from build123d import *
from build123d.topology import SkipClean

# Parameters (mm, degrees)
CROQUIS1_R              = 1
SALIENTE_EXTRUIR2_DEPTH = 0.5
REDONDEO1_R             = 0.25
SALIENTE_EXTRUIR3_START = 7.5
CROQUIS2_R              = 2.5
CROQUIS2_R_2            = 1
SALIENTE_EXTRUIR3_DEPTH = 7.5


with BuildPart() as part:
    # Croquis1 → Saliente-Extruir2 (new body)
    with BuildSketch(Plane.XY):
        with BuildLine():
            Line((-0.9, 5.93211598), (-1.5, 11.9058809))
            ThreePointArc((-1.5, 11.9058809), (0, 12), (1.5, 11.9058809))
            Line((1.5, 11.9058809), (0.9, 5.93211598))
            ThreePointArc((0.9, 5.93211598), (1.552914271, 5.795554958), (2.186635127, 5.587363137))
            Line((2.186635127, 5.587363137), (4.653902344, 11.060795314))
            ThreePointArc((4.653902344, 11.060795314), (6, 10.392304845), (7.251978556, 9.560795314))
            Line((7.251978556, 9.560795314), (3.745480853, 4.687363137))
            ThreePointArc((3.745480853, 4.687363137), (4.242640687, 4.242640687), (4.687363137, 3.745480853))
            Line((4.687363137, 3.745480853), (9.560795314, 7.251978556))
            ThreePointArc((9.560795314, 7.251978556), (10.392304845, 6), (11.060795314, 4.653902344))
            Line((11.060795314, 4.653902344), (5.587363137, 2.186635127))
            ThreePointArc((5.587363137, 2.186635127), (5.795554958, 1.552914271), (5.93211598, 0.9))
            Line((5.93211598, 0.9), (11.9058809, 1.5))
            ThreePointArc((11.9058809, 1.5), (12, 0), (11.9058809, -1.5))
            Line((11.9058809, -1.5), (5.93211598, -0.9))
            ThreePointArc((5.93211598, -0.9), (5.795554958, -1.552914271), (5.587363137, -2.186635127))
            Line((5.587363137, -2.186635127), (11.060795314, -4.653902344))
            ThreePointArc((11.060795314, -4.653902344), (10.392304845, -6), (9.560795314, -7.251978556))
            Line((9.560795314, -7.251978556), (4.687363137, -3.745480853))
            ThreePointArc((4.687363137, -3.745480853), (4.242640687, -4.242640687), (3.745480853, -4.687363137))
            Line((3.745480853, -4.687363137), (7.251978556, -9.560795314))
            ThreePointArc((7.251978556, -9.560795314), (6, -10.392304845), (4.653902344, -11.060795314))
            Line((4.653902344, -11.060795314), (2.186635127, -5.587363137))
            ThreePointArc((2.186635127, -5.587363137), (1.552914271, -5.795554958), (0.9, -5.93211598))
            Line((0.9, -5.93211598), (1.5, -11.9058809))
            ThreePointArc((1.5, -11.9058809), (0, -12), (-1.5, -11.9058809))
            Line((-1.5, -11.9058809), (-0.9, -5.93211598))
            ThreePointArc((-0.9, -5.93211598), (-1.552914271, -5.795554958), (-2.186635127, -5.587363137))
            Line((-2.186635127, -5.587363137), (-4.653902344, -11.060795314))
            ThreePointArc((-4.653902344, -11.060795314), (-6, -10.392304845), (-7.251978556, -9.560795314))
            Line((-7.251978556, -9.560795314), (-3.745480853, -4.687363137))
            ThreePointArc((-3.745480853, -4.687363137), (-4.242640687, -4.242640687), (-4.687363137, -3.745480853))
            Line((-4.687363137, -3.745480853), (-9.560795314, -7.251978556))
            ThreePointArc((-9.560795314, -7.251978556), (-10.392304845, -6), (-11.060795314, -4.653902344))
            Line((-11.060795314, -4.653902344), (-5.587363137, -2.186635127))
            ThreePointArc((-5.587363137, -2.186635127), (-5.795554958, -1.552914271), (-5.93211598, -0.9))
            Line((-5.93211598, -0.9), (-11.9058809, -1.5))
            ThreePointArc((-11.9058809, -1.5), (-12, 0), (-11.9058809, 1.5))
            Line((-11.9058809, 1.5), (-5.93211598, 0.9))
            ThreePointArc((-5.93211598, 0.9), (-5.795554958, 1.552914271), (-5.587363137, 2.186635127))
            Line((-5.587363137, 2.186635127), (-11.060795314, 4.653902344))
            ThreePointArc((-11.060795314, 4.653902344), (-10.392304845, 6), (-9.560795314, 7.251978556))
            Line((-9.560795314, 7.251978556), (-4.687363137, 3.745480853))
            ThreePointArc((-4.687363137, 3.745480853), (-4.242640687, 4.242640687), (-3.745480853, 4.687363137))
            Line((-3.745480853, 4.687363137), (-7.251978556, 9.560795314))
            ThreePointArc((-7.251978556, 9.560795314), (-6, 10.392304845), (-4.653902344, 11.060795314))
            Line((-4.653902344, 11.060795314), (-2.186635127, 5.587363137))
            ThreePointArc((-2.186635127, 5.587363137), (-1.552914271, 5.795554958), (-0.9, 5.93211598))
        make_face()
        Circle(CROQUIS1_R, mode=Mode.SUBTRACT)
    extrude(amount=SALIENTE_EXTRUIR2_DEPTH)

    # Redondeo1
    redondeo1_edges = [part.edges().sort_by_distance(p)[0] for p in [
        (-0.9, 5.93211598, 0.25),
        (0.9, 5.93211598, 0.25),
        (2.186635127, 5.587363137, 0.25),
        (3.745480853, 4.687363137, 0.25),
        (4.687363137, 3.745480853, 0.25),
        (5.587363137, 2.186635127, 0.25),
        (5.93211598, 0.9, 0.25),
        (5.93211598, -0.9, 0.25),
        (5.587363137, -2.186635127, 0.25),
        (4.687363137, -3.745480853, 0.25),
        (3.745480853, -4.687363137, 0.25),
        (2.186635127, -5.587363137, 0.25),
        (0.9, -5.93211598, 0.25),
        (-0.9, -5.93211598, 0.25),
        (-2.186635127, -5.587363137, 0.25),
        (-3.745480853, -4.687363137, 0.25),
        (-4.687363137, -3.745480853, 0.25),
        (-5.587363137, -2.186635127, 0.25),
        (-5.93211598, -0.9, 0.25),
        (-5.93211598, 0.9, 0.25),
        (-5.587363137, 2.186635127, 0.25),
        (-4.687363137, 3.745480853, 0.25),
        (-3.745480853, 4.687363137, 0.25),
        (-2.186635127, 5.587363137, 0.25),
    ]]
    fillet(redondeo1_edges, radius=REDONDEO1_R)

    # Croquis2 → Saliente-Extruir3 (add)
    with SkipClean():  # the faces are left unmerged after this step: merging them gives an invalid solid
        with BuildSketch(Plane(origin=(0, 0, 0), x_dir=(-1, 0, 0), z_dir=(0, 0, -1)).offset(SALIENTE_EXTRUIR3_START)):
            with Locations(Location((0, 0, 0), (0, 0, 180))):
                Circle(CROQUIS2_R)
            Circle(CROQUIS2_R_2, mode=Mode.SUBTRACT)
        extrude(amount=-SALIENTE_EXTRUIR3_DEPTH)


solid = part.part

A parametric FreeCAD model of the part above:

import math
import FreeCAD as App
import Part
import Sketcher

V = App.Vector
Q = App.Units.Quantity


def edges_at(feature, points):
    """Names of the edges that pass closest to the given points."""
    edges = feature.Shape.Edges
    near = lambda p: min(range(len(edges)), key=lambda i: edges[i].distToShape(Part.Vertex(*p))[0])
    return sorted({f"Edge{near(p) + 1}" for p in points})

doc = App.newDocument("Part")
body = doc.addObject("PartDesign::Body", "Body")

# Sketch on XY plane
sketch1 = doc.addObject("Sketcher::SketchObject", "Sketch")
body.addObject(sketch1)
sketch1.AttachmentSupport = (doc.XY_Plane, [""])
sketch1.MapMode = "FlatFace"
sketch1.addGeometry(Part.LineSegment(V(-1.5, 11.9, 0), V(-0.9, 5.9, 0)), False)
sketch1.addGeometry(Part.ArcOfCircle(Part.Circle(V(0, 0, 0), V(0, 0, 1), 6), math.radians(98.63), math.radians(111.37)), False)
sketch1.addGeometry(Part.LineSegment(V(-2.2, 5.6, 0), V(-4.7, 11.1, 0)), False)
sketch1.addGeometry(Part.ArcOfCircle(Part.Circle(V(0, 0, 0), V(0, 0, 1), 12), math.radians(112.82), math.radians(127.18)), False)
sketch1.addGeometry(Part.LineSegment(V(-7.3, 9.6, 0), V(-3.7, 4.7, 0)), False)
sketch1.addGeometry(Part.ArcOfCircle(Part.Circle(V(0, 0, 0), V(0, 0, 1), 6), math.radians(128.63), math.radians(141.37)), False)
sketch1.addGeometry(Part.LineSegment(V(-4.7, 3.7, 0), V(-9.6, 7.3, 0)), False)
sketch1.addGeometry(Part.ArcOfCircle(Part.Circle(V(0, 0, 0), V(0, 0, 1), 12), math.radians(142.82), math.radians(157.18)), False)
sketch1.addGeometry(Part.LineSegment(V(-11.1, 4.7, 0), V(-5.6, 2.2, 0)), False)
sketch1.addGeometry(Part.ArcOfCircle(Part.Circle(V(0, 0, 0), V(0, 0, 1), 6), math.radians(158.63), math.radians(171.37)), False)
sketch1.addGeometry(Part.LineSegment(V(-5.9, 0.9, 0), V(-11.9, 1.5, 0)), False)
sketch1.addGeometry(Part.ArcOfCircle(Part.Circle(V(0, 0, 0), V(0, 0, 1), 12), math.radians(172.82), math.radians(187.18)), False)
sketch1.addGeometry(Part.LineSegment(V(-11.9, -1.5, 0), V(-5.9, -0.9, 0)), False)
sketch1.addGeometry(Part.ArcOfCircle(Part.Circle(V(0, 0, 0), V(0, 0, 1), 6), math.radians(-171.37), math.radians(-158.63)), False)
sketch1.addGeometry(Part.LineSegment(V(-5.6, -2.2, 0), V(-11.1, -4.7, 0)), False)
sketch1.addGeometry(Part.ArcOfCircle(Part.Circle(V(0, 0, 0), V(0, 0, 1), 12), math.radians(-157.18), math.radians(-142.82)), False)
sketch1.addGeometry(Part.LineSegment(V(-9.6, -7.3, 0), V(-4.7, -3.7, 0)), False)
sketch1.addGeometry(Part.ArcOfCircle(Part.Circle(V(0, 0, 0), V(0, 0, 1), 6), math.radians(-141.37), math.radians(-128.63)), False)
sketch1.addGeometry(Part.LineSegment(V(-3.7, -4.7, 0), V(-7.3, -9.6, 0)), False)
sketch1.addGeometry(Part.ArcOfCircle(Part.Circle(V(0, 0, 0), V(0, 0, 1), 12), math.radians(-127.18), math.radians(-112.82)), False)
sketch1.addGeometry(Part.LineSegment(V(-4.7, -11.1, 0), V(-2.2, -5.6, 0)), False)
sketch1.addGeometry(Part.ArcOfCircle(Part.Circle(V(0, 0, 0), V(0, 0, 1), 6), math.radians(-111.37), math.radians(-98.63)), False)
sketch1.addGeometry(Part.LineSegment(V(-0.9, -5.9, 0), V(-1.5, -11.9, 0)), False)
sketch1.addGeometry(Part.ArcOfCircle(Part.Circle(V(0, 0, 0), V(0, 0, 1), 12), math.radians(-97.18), math.radians(-82.82)), False)
sketch1.addGeometry(Part.LineSegment(V(1.5, -11.9, 0), V(0.9, -5.9, 0)), False)
sketch1.addGeometry(Part.ArcOfCircle(Part.Circle(V(0, 0, 0), V(0, 0, 1), 6), math.radians(-81.37), math.radians(-68.63)), False)
sketch1.addGeometry(Part.LineSegment(V(2.2, -5.6, 0), V(4.7, -11.1, 0)), False)
sketch1.addGeometry(Part.ArcOfCircle(Part.Circle(V(0, 0, 0), V(0, 0, 1), 12), math.radians(-67.18), math.radians(-52.82)), False)
sketch1.addGeometry(Part.LineSegment(V(7.3, -9.6, 0), V(3.7, -4.7, 0)), False)
sketch1.addGeometry(Part.ArcOfCircle(Part.Circle(V(0, 0, 0), V(0, 0, 1), 6), math.radians(-51.37), math.radians(-38.63)), False)
sketch1.addGeometry(Part.LineSegment(V(4.7, -3.7, 0), V(9.6, -7.3, 0)), False)
sketch1.addGeometry(Part.ArcOfCircle(Part.Circle(V(0, 0, 0), V(0, 0, 1), 12), math.radians(-37.18), math.radians(-22.82)), False)
sketch1.addGeometry(Part.LineSegment(V(11.1, -4.7, 0), V(5.6, -2.2, 0)), False)
sketch1.addGeometry(Part.ArcOfCircle(Part.Circle(V(0, 0, 0), V(0, 0, 1), 6), math.radians(-21.37), math.radians(-8.63)), False)
sketch1.addGeometry(Part.LineSegment(V(5.9, -0.9, 0), V(11.9, -1.5, 0)), False)
sketch1.addGeometry(Part.ArcOfCircle(Part.Circle(V(0, 0, 0), V(0, 0, 1), 12), math.radians(-7.18), math.radians(7.18)), False)
sketch1.addGeometry(Part.LineSegment(V(11.9, 1.5, 0), V(5.9, 0.9, 0)), False)
sketch1.addGeometry(Part.ArcOfCircle(Part.Circle(V(0, 0, 0), V(0, 0, 1), 6), math.radians(8.63), math.radians(21.37)), False)
sketch1.addGeometry(Part.LineSegment(V(5.6, 2.2, 0), V(11.1, 4.7, 0)), False)
sketch1.addGeometry(Part.ArcOfCircle(Part.Circle(V(0, 0, 0), V(0, 0, 1), 12), math.radians(22.82), math.radians(37.18)), False)
sketch1.addGeometry(Part.LineSegment(V(9.6, 7.3, 0), V(4.7, 3.7, 0)), False)
sketch1.addGeometry(Part.ArcOfCircle(Part.Circle(V(0, 0, 0), V(0, 0, 1), 6), math.radians(38.63), math.radians(51.37)), False)
sketch1.addGeometry(Part.LineSegment(V(3.7, 4.7, 0), V(7.3, 9.6, 0)), False)
sketch1.addGeometry(Part.ArcOfCircle(Part.Circle(V(0, 0, 0), V(0, 0, 1), 12), math.radians(52.82), math.radians(67.18)), False)
sketch1.addGeometry(Part.LineSegment(V(4.7, 11.1, 0), V(2.2, 5.6, 0)), False)
sketch1.addGeometry(Part.ArcOfCircle(Part.Circle(V(0, 0, 0), V(0, 0, 1), 6), math.radians(68.63), math.radians(81.37)), False)
sketch1.addGeometry(Part.LineSegment(V(0.9, 5.9, 0), V(1.5, 11.9, 0)), False)
sketch1.addGeometry(Part.ArcOfCircle(Part.Circle(V(0, 0, 0), V(0, 0, 1), 12), math.radians(82.82), math.radians(97.18)), False)
sketch1.addGeometry(Part.Circle(V(0, 0, 0), V(0, 0, 1), 1), False)
sketch1.addConstraint(Sketcher.Constraint("Coincident", 0, 2, 1, 1))
sketch1.addConstraint(Sketcher.Constraint("Coincident", 1, 2, 2, 1))
sketch1.addConstraint(Sketcher.Constraint("Coincident", 2, 2, 3, 1))
sketch1.addConstraint(Sketcher.Constraint("Coincident", 3, 2, 4, 1))
sketch1.addConstraint(Sketcher.Constraint("Coincident", 4, 2, 5, 1))
sketch1.addConstraint(Sketcher.Constraint("Coincident", 5, 2, 6, 1))
sketch1.addConstraint(Sketcher.Constraint("Coincident", 6, 2, 7, 1))
sketch1.addConstraint(Sketcher.Constraint("Coincident", 7, 2, 8, 1))
sketch1.addConstraint(Sketcher.Constraint("Coincident", 8, 2, 9, 1))
sketch1.addConstraint(Sketcher.Constraint("Coincident", 9, 2, 10, 1))
sketch1.addConstraint(Sketcher.Constraint("Coincident", 10, 2, 11, 1))
sketch1.addConstraint(Sketcher.Constraint("Coincident", 11, 2, 12, 1))
sketch1.addConstraint(Sketcher.Constraint("Coincident", 12, 2, 13, 1))
sketch1.addConstraint(Sketcher.Constraint("Coincident", 13, 2, 14, 1))
sketch1.addConstraint(Sketcher.Constraint("Coincident", 14, 2, 15, 1))
sketch1.addConstraint(Sketcher.Constraint("Coincident", 15, 2, 16, 1))
sketch1.addConstraint(Sketcher.Constraint("Coincident", 16, 2, 17, 1))
sketch1.addConstraint(Sketcher.Constraint("Coincident", 17, 2, 18, 1))
sketch1.addConstraint(Sketcher.Constraint("Coincident", 18, 2, 19, 1))
sketch1.addConstraint(Sketcher.Constraint("Coincident", 19, 2, 20, 1))
sketch1.addConstraint(Sketcher.Constraint("Coincident", 20, 2, 21, 1))
sketch1.addConstraint(Sketcher.Constraint("Coincident", 21, 2, 22, 1))
sketch1.addConstraint(Sketcher.Constraint("Coincident", 22, 2, 23, 1))
sketch1.addConstraint(Sketcher.Constraint("Coincident", 23, 2, 24, 1))
sketch1.addConstraint(Sketcher.Constraint("Coincident", 24, 2, 25, 1))
sketch1.addConstraint(Sketcher.Constraint("Coincident", 25, 2, 26, 1))
sketch1.addConstraint(Sketcher.Constraint("Coincident", 26, 2, 27, 1))
sketch1.addConstraint(Sketcher.Constraint("Coincident", 27, 2, 28, 1))
sketch1.addConstraint(Sketcher.Constraint("Coincident", 28, 2, 29, 1))
sketch1.addConstraint(Sketcher.Constraint("Coincident", 29, 2, 30, 1))
sketch1.addConstraint(Sketcher.Constraint("Coincident", 30, 2, 31, 1))
sketch1.addConstraint(Sketcher.Constraint("Coincident", 31, 2, 32, 1))
sketch1.addConstraint(Sketcher.Constraint("Coincident", 32, 2, 33, 1))
sketch1.addConstraint(Sketcher.Constraint("Coincident", 33, 2, 34, 1))
sketch1.addConstraint(Sketcher.Constraint("Coincident", 34, 2, 35, 1))
sketch1.addConstraint(Sketcher.Constraint("Coincident", 35, 2, 36, 1))
sketch1.addConstraint(Sketcher.Constraint("Coincident", 36, 2, 37, 1))
sketch1.addConstraint(Sketcher.Constraint("Coincident", 37, 2, 38, 1))
sketch1.addConstraint(Sketcher.Constraint("Coincident", 38, 2, 39, 1))
sketch1.addConstraint(Sketcher.Constraint("Coincident", 39, 2, 40, 1))
sketch1.addConstraint(Sketcher.Constraint("Coincident", 40, 2, 41, 1))
sketch1.addConstraint(Sketcher.Constraint("Coincident", 41, 2, 42, 1))
sketch1.addConstraint(Sketcher.Constraint("Coincident", 42, 2, 43, 1))
sketch1.addConstraint(Sketcher.Constraint("Coincident", 43, 2, 44, 1))
sketch1.addConstraint(Sketcher.Constraint("Coincident", 44, 2, 45, 1))
sketch1.addConstraint(Sketcher.Constraint("Coincident", 45, 2, 46, 1))
sketch1.addConstraint(Sketcher.Constraint("Coincident", 46, 2, 47, 1))
sketch1.addConstraint(Sketcher.Constraint("Coincident", 47, 2, 0, 1))
sketch1.addConstraint(Sketcher.Constraint("Coincident", 1, 3, -1, 1))
sketch1.addConstraint(Sketcher.Constraint("Coincident", 3, 3, -1, 1))
sketch1.addConstraint(Sketcher.Constraint("Coincident", 5, 3, -1, 1))
sketch1.addConstraint(Sketcher.Constraint("Coincident", 7, 3, -1, 1))
sketch1.addConstraint(Sketcher.Constraint("Coincident", 9, 3, -1, 1))
sketch1.addConstraint(Sketcher.Constraint("Coincident", 11, 3, -1, 1))
sketch1.addConstraint(Sketcher.Constraint("Coincident", 13, 3, -1, 1))
sketch1.addConstraint(Sketcher.Constraint("Coincident", 15, 3, -1, 1))
sketch1.addConstraint(Sketcher.Constraint("Coincident", 17, 3, -1, 1))
sketch1.addConstraint(Sketcher.Constraint("Coincident", 19, 3, -1, 1))
sketch1.addConstraint(Sketcher.Constraint("Coincident", 21, 3, -1, 1))
sketch1.addConstraint(Sketcher.Constraint("Coincident", 23, 3, -1, 1))
sketch1.addConstraint(Sketcher.Constraint("Coincident", 25, 3, -1, 1))
sketch1.addConstraint(Sketcher.Constraint("Coincident", 27, 3, -1, 1))
sketch1.addConstraint(Sketcher.Constraint("Coincident", 29, 3, -1, 1))
sketch1.addConstraint(Sketcher.Constraint("Coincident", 31, 3, -1, 1))
sketch1.addConstraint(Sketcher.Constraint("Coincident", 33, 3, -1, 1))
sketch1.addConstraint(Sketcher.Constraint("Coincident", 35, 3, -1, 1))
sketch1.addConstraint(Sketcher.Constraint("Coincident", 37, 3, -1, 1))
sketch1.addConstraint(Sketcher.Constraint("Coincident", 39, 3, -1, 1))
sketch1.addConstraint(Sketcher.Constraint("Coincident", 41, 3, -1, 1))
sketch1.addConstraint(Sketcher.Constraint("Coincident", 43, 3, -1, 1))
sketch1.addConstraint(Sketcher.Constraint("Coincident", 45, 3, -1, 1))
sketch1.addConstraint(Sketcher.Constraint("Coincident", 47, 3, -1, 1))
sketch1.addConstraint(Sketcher.Constraint("Coincident", 48, 3, -1, 1))
sketch1.addConstraint(Sketcher.Constraint("Equal", 1, 5))
sketch1.addConstraint(Sketcher.Constraint("Equal", 3, 7))
sketch1.addConstraint(Sketcher.Constraint("Equal", 5, 9))
sketch1.addConstraint(Sketcher.Constraint("Equal", 7, 11))
sketch1.addConstraint(Sketcher.Constraint("Equal", 9, 13))
sketch1.addConstraint(Sketcher.Constraint("Equal", 11, 15))
sketch1.addConstraint(Sketcher.Constraint("Equal", 13, 17))
sketch1.addConstraint(Sketcher.Constraint("Equal", 15, 19))
sketch1.addConstraint(Sketcher.Constraint("Equal", 17, 21))
sketch1.addConstraint(Sketcher.Constraint("Equal", 19, 23))
sketch1.addConstraint(Sketcher.Constraint("Equal", 21, 25))
sketch1.addConstraint(Sketcher.Constraint("Equal", 23, 27))
sketch1.addConstraint(Sketcher.Constraint("Equal", 25, 29))
sketch1.addConstraint(Sketcher.Constraint("Equal", 27, 31))
sketch1.addConstraint(Sketcher.Constraint("Equal", 29, 33))
sketch1.addConstraint(Sketcher.Constraint("Equal", 31, 35))
sketch1.addConstraint(Sketcher.Constraint("Equal", 33, 37))
sketch1.addConstraint(Sketcher.Constraint("Equal", 35, 39))
sketch1.addConstraint(Sketcher.Constraint("Equal", 37, 41))
sketch1.addConstraint(Sketcher.Constraint("Equal", 39, 43))
sketch1.addConstraint(Sketcher.Constraint("Equal", 41, 45))
sketch1.addConstraint(Sketcher.Constraint("Equal", 43, 47))
sketch1.addConstraint(Sketcher.Constraint("Perpendicular", 0, 12))
sketch1.addConstraint(Sketcher.Constraint("Perpendicular", 2, 14))
sketch1.addConstraint(Sketcher.Constraint("Perpendicular", 4, 16))
sketch1.addConstraint(Sketcher.Constraint("Perpendicular", 6, 18))
sketch1.addConstraint(Sketcher.Constraint("Perpendicular", 8, 20))
sketch1.addConstraint(Sketcher.Constraint("Perpendicular", 10, 22))
sketch1.addConstraint(Sketcher.Constraint("Perpendicular", 12, 24))
sketch1.addConstraint(Sketcher.Constraint("Perpendicular", 14, 26))
sketch1.addConstraint(Sketcher.Constraint("Perpendicular", 16, 28))
sketch1.addConstraint(Sketcher.Constraint("Perpendicular", 18, 30))
sketch1.addConstraint(Sketcher.Constraint("Perpendicular", 20, 32))
sketch1.addConstraint(Sketcher.Constraint("Perpendicular", 22, 34))
sketch1.addConstraint(Sketcher.Constraint("Perpendicular", 24, 36))
sketch1.addConstraint(Sketcher.Constraint("Perpendicular", 26, 38))
sketch1.addConstraint(Sketcher.Constraint("Perpendicular", 28, 40))
sketch1.addConstraint(Sketcher.Constraint("Perpendicular", 30, 42))
sketch1.addConstraint(Sketcher.Constraint("Perpendicular", 32, 44))
sketch1.addConstraint(Sketcher.Constraint("Perpendicular", 34, 46))
sketch1.addConstraint(Sketcher.Constraint("Horizontal", 22, 2, 23, 2))
sketch1.addConstraint(Sketcher.Constraint("Horizontal", 21, 2, 24, 2))
sketch1.addConstraint(Sketcher.Constraint("Horizontal", 20, 2, 25, 2))
sketch1.addConstraint(Sketcher.Constraint("Horizontal", 19, 2, 26, 2))
sketch1.addConstraint(Sketcher.Constraint("Horizontal", 18, 2, 27, 2))
sketch1.addConstraint(Sketcher.Constraint("Horizontal", 17, 2, 28, 2))
sketch1.addConstraint(Sketcher.Constraint("Horizontal", 16, 2, 29, 2))
sketch1.addConstraint(Sketcher.Constraint("Horizontal", 14, 2, 31, 2))
sketch1.addConstraint(Sketcher.Constraint("Horizontal", 12, 2, 33, 2))
sketch1.addConstraint(Sketcher.Constraint("Horizontal", 10, 2, 35, 2))
sketch1.addConstraint(Sketcher.Constraint("Horizontal", 8, 2, 37, 2))
sketch1.addConstraint(Sketcher.Constraint("Horizontal", 6, 2, 39, 2))
sketch1.addConstraint(Sketcher.Constraint("Horizontal", 4, 2, 41, 2))
sketch1.addConstraint(Sketcher.Constraint("Horizontal", 2, 2, 43, 2))
sketch1.addConstraint(Sketcher.Constraint("Horizontal", 0, 2, 45, 2))
sketch1.addConstraint(Sketcher.Constraint("Vertical", 10, 2, 11, 2))
sketch1.addConstraint(Sketcher.Constraint("Vertical", 8, 2, 13, 2))
sketch1.addConstraint(Sketcher.Constraint("Vertical", 6, 2, 15, 2))
sketch1.addConstraint(Sketcher.Constraint("Vertical", 4, 2, 17, 2))
sketch1.addConstraint(Sketcher.Constraint("Vertical", 2, 2, 19, 2))
sketch1.addConstraint(Sketcher.Constraint("Vertical", 0, 2, 21, 2))
sketch1.addConstraint(Sketcher.Constraint("Equal", 0, 2))
sketch1.addConstraint(Sketcher.Constraint("Equal", 2, 4))
sketch1.addConstraint(Sketcher.Constraint("Equal", 4, 6))
sketch1.addConstraint(Sketcher.Constraint("Equal", 6, 8))
sketch1.addConstraint(Sketcher.Constraint("Equal", 8, 10))
sketch1.addConstraint(Sketcher.Constraint("Diameter", 48, Q("2 mm")))
sketch1.addConstraint(Sketcher.Constraint("Radius", 1, Q("6 mm")))
sketch1.addConstraint(Sketcher.Constraint("Radius", 3, Q("12 mm")))
sketch1.addConstraint(Sketcher.Constraint("DistanceX", 0, 2, -1, 1, Q("0.9 mm")))
sketch1.addConstraint(Sketcher.Constraint("DistanceY", -1, 1, 10, 2, Q("1.5 mm")))
sketch1.addConstraint(Sketcher.Constraint("DistanceX", 3, 2, -1, 1, Q("7.251979 mm")))
sketch1.addConstraint(Sketcher.Constraint("DistanceX", 1, 2, -1, 1, Q("2.186635 mm")))
pad1 = doc.addObject("PartDesign::Pad", "Pad")
body.addObject(pad1)
pad1.Profile = sketch1
pad1.Length = 0.5
doc.recompute()

fillet = doc.addObject("PartDesign::Fillet", "Fillet")
body.addObject(fillet)
fillet.Base = (pad1, edges_at(pad1, [
    (-0.9, 5.932, 0.25),
    (0.9, 5.932, 0.25),
    (2.187, 5.587, 0.25),
    (3.745, 4.687, 0.25),
    (4.687, 3.745, 0.25),
    (5.587, 2.187, 0.25),
    (5.932, 0.9, 0.25),
    (5.932, -0.9, 0.25),
    (5.587, -2.187, 0.25),
    (4.687, -3.745, 0.25),
    (3.745, -4.687, 0.25),
    (2.187, -5.587, 0.25),
    (0.9, -5.932, 0.25),
    (-0.9, -5.932, 0.25),
    (-2.187, -5.587, 0.25),
    (-3.745, -4.687, 0.25),
    (-4.687, -3.745, 0.25),
    (-5.587, -2.187, 0.25),
    (-5.932, -0.9, 0.25),
    (-5.932, 0.9, 0.25),
    (-5.587, 2.187, 0.25),
    (-4.687, 3.745, 0.25),
    (-3.745, 4.687, 0.25),
    (-2.187, 5.587, 0.25),
]))
fillet.Radius = 0.25

# Sketch on XY plane
sketch2 = doc.addObject("Sketcher::SketchObject", "Sketch001")
body.addObject(sketch2)
sketch2.AttachmentSupport = (doc.XY_Plane, [""])
sketch2.MapMode = "FlatFace"
sketch2.AttachmentOffset = App.Placement(V(0, 0, -7.5), App.Rotation())
sketch2.addGeometry(Part.Circle(V(0, 0, 0), V(0, 0, 1), 2.5), False)
sketch2.addGeometry(Part.Circle(V(0, 0, 0), V(0, 0, 1), 1), False)
sketch2.addConstraint(Sketcher.Constraint("Coincident", 0, 3, -1, 1))
sketch2.addConstraint(Sketcher.Constraint("Coincident", 1, 3, -1, 1))
sketch2.addConstraint(Sketcher.Constraint("Diameter", 0, Q("5 mm")))
sketch2.addConstraint(Sketcher.Constraint("Diameter", 1, Q("2 mm")))
pad2 = doc.addObject("PartDesign::Pad", "Pad001")
body.addObject(pad2)
pad2.Profile = sketch2
pad2.Length = 7.5

doc.recompute()
